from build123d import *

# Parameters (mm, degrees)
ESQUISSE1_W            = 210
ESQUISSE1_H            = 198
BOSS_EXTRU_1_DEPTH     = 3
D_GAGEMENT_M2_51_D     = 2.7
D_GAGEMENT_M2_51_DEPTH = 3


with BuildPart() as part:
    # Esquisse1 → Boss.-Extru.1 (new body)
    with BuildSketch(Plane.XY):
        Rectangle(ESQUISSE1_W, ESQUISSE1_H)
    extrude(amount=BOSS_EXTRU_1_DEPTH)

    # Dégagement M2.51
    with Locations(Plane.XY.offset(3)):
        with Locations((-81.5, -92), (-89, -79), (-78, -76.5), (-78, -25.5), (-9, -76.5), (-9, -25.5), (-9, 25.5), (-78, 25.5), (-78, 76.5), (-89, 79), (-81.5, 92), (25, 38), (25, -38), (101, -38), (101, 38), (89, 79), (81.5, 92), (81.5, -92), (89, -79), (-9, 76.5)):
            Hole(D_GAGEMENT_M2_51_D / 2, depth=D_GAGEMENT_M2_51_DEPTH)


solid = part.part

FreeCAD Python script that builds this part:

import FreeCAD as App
import Part
import Sketcher


def add_polygon(sketch, points):
    """Adds a closed chain of lines whose ends are joined by coincident constraints."""
    first, n = sketch.GeometryCount, len(points)
    for a, b in zip(points, points[1:] + points[:1]):
        sketch.addGeometry(Part.LineSegment(App.Vector(*a, 0), App.Vector(*b, 0)), False)
    for i in range(n):
        sketch.addConstraint(Sketcher.Constraint("Coincident", first + i, 2, first + (i + 1) % n, 1))

doc = App.newDocument("Part")
params = doc.addObject("Spreadsheet::Sheet", "Params")
for row, (alias, value) in enumerate([
    ("sketch1_width", "210 mm"),
    ("sketch1_height", "198 mm"),
    ("pad1_length", "3 mm"),
    ("sketch2_diameter", "2.7 mm"),
    ("hole_diameter", "2.7 mm"),
    ("hole_depth", "3 mm"),
], start=1):
    params.set(f"A{row}", alias)
    params.set(f"B{row}", "=" + value)
    params.setAlias(f"B{row}", alias)

body = doc.addObject("PartDesign::Body", "Body")

sketch1 = doc.addObject("Sketcher::SketchObject", "Sketch")
body.addObject(sketch1)
sketch1.AttachmentSupport = (doc.XY_Plane, [""])
sketch1.MapMode = "FlatFace"
add_polygon(sketch1, [(-105, 99), (-105, -99), (105, -99), (105, 99)])
sketch1.addConstraint(Sketcher.Constraint("Vertical", 0))
sketch1.addConstraint(Sketcher.Constraint("Horizontal", 1))
sketch1.addConstraint(Sketcher.Constraint("Vertical", 2))
sketch1.addConstraint(Sketcher.Constraint("Horizontal", 3))
sketch1.addConstraint(Sketcher.Constraint("Symmetric", 0, 2, 2, 2, -1, 1))
sketch1.addConstraint(Sketcher.Constraint("DistanceX", 1, 1, 1, 2, 210.0))
sketch1.addConstraint(Sketcher.Constraint("DistanceY", 0, 2, 0, 1, 198.0))
sketch1.setExpression("Constraints[9]", "Params.sketch1_width")
sketch1.setExpression("Constraints[10]", "Params.sketch1_height")
pad1 = doc.addObject("PartDesign::Pad", "Pad")
body.addObject(pad1)
pad1.Profile = sketch1
pad1.setExpression("Length", "Params.pad1_length")

sketch2 = doc.addObject("Sketcher::SketchObject", "Sketch001")
body.addObject(sketch2)
sketch2.AttachmentSupport = (doc.XY_Plane, [""])
sketch2.MapMode = "FlatFace"
sketch2.AttachmentOffset = App.Placement(App.Vector(0, 0, 3), App.Rotation())
sketch2.addGeometry(Part.Circle(App.Vector(-81.5, -92, 0), App.Vector(0, 0, 1), 1.4), False)
sketch2.addGeometry(Part.Circle(App.Vector(-89, -79, 0), App.Vector(0, 0, 1), 1.4), False)
sketch2.addGeometry(Part.Circle(App.Vector(-78, -76.5, 0), App.Vector(0, 0, 1), 1.4), False)
sketch2.addGeometry(Part.Circle(App.Vector(-78, -25.5, 0), App.Vector(0, 0, 1), 1.4), False)
sketch2.addGeometry(Part.Circle(App.Vector(-9, -76.5, 0), App.Vector(0, 0, 1), 1.4), False)
sketch2.addGeometry(Part.Circle(App.Vector(-9, -25.5, 0), App.Vector(0, 0, 1), 1.4), False)
sketch2.addGeometry(Part.Circle(App.Vector(-9, 25.5, 0), App.Vector(0, 0, 1), 1.4), False)
sketch2.addGeometry(Part.Circle(App.Vector(-78, 25.5, 0), App.Vector(0, 0, 1), 1.4), False)
sketch2.addGeometry(Part.Circle(App.Vector(-78, 76.5, 0), App.Vector(0, 0, 1), 1.4), False)
sketch2.addGeometry(Part.Circle(App.Vector(-89, 79, 0), App.Vector(0, 0, 1), 1.4), False)
sketch2.addGeometry(Part.Circle(App.Vector(-81.5, 92, 0), App.Vector(0, 0, 1), 1.4), False)
sketch2.addGeometry(Part.Circle(App.Vector(25, 38, 0), App.Vector(0, 0, 1), 1.4), False)
sketch2.addGeometry(Part.Circle(App.Vector(25, -38, 0), App.Vector(0, 0, 1), 1.4), False)
sketch2.addGeometry(Part.Circle(App.Vector(101, -38, 0), App.Vector(0, 0, 1), 1.4), False)
sketch2.addGeometry(Part.Circle(App.Vector(101, 38, 0), App.Vector(0, 0, 1), 1.4), False)
sketch2.addGeometry(Part.Circle(App.Vector(89, 79, 0), App.Vector(0, 0, 1), 1.4), False)
sketch2.addGeometry(Part.Circle(App.Vector(81.5, 92, 0), App.Vector(0, 0, 1), 1.4), False)
sketch2.addGeometry(Part.Circle(App.Vector(81.5, -92, 0), App.Vector(0, 0, 1), 1.4), False)
sketch2.addGeometry(Part.Circle(App.Vector(89, -79, 0), App.Vector(0, 0, 1), 1.4), False)
sketch2.addGeometry(Part.Circle(App.Vector(-9, 76.5, 0), App.Vector(0, 0, 1), 1.4), False)
sketch2.addConstraint(Sketcher.Constraint("Equal", 0, 1))
sketch2.addConstraint(Sketcher.Constraint("Equal", 1, 2))
sketch2.addConstraint(Sketcher.Constraint("Equal", 2, 3))
sketch2.addConstraint(Sketcher.Constraint("Equal", 3, 4))
sketch2.addConstraint(Sketcher.Constraint("Equal", 4, 5))
sketch2.addConstraint(Sketcher.Constraint("Equal", 5, 6))
sketch2.addConstraint(Sketcher.Constraint("Equal", 6, 7))
sketch2.addConstraint(Sketcher.Constraint("Equal", 7, 8))
sketch2.addConstraint(Sketcher.Constraint("Equal", 8, 9))
sketch2.addConstraint(Sketcher.Constraint("Equal", 9, 10))
sketch2.addConstraint(Sketcher.Constraint("Equal", 10, 11))
sketch2.addConstraint(Sketcher.Constraint("Equal", 11, 12))
sketch2.addConstraint(Sketcher.Constraint("Equal", 12, 13))
sketch2.addConstraint(Sketcher.Constraint("Equal", 13, 14))
sketch2.addConstraint(Sketcher.Constraint("Equal", 14, 15))
sketch2.addConstraint(Sketcher.Constraint("Equal", 15, 16))
sketch2.addConstraint(Sketcher.Constraint("Equal", 16, 17))
sketch2.addConstraint(Sketcher.Constraint("Equal", 17, 18))
sketch2.addConstraint(Sketcher.Constraint("Equal", 18, 19))
sketch2.addConstraint(Sketcher.Constraint("Symmetric", 1, 3, 15, 3, -1, 1))
sketch2.addConstraint(Sketcher.Constraint("Symmetric", 0, 3, 16, 3, -1, 1))
sketch2.addConstraint(Sketcher.Constraint("Symmetric", 10, 3, 17, 3, -1, 1))
sketch2.addConstraint(Sketcher.Constraint("Symmetric", 9, 3, 18, 3, -1, 1))
sketch2.addConstraint(Sketcher.Constraint("Symmetric", 9, 3, 15, 3, -2))
sketch2.addConstraint(Sketcher.Constraint("Symmetric", 10, 3, 16, 3, -2))
sketch2.addConstraint(Sketcher.Constraint("Symmetric", 5, 3, 6, 3, -1))
sketch2.addConstraint(Sketcher.Constraint("Symmetric", 3, 3, 7, 3, -1))
sketch2.addConstraint(Sketcher.Constraint("Symmetric", 2, 3, 8, 3, -1))
sketch2.addConstraint(Sketcher.Constraint("Symmetric", 11, 3, 12, 3, -1))
sketch2.addConstraint(Sketcher.Constraint("Symmetric", 13, 3, 14, 3, -1))
sketch2.addConstraint(Sketcher.Constraint("Symmetric", 4, 3, 19, 3, -1))
sketch2.addConstraint(Sketcher.Constraint("Horizontal", 2, 3, 4, 3))
sketch2.addConstraint(Sketcher.Constraint("Horizontal", 3, 3, 5, 3))
sketch2.addConstraint(Sketcher.Constraint("Horizontal", 12, 3, 13, 3))
sketch2.addConstraint(Sketcher.Constraint("Vertical", 2, 3, 3, 3))
sketch2.addConstraint(Sketcher.Constraint("Vertical", 4, 3, 5, 3))
sketch2.addConstraint(Sketcher.Constraint("Diameter", 0, 2.7))
sketch2.addConstraint(Sketcher.Constraint("DistanceY", 0, 3, -1, 1, 92.0))
sketch2.addConstraint(Sketcher.Constraint("DistanceX", 1, 3, -1, 1, 89.0))
sketch2.addConstraint(Sketcher.Constraint("DistanceY", 1, 3, -1, 1, 79.0))
sketch2.addConstraint(Sketcher.Constraint("DistanceX", 2, 3, -1, 1, 78.0))
sketch2.addConstraint(Sketcher.Constraint("DistanceX", 4, 3, -1, 1, 9.0))
sketch2.addConstraint(Sketcher.Constraint("DistanceX", -1, 1, 11, 3, 25.0))
sketch2.addConstraint(Sketcher.Constraint("DistanceY", -1, 1, 11, 3, 38.0))
sketch2.addConstraint(Sketcher.Constraint("DistanceX", -1, 1, 13, 3, 101.0))
sketch2.addConstraint(Sketcher.Constraint("DistanceY", 2, 3, 3, 3, 51.0))
sketch2.addConstraint(Sketcher.Constraint("DistanceY", 5, 3, 6, 3, 51.0))
sketch2.addConstraint(Sketcher.Constraint("DistanceX", 0, 3, -1, 1, 81.5))
sketch2.setExpression("Constraints[36]", "Params.sketch2_diameter")
doc.recompute()
hole = doc.addObject("PartDesign::Hole", "Hole")
body.addObject(hole)
hole.Profile = sketch2
hole.ThreadType = "None"
hole.setExpression("Diameter", "Params.hole_diameter")
hole.DepthType = "Dimension"
hole.setExpression("Depth", "Params.hole_depth")
hole.DrillPoint = "Flat"

doc.recompute()
